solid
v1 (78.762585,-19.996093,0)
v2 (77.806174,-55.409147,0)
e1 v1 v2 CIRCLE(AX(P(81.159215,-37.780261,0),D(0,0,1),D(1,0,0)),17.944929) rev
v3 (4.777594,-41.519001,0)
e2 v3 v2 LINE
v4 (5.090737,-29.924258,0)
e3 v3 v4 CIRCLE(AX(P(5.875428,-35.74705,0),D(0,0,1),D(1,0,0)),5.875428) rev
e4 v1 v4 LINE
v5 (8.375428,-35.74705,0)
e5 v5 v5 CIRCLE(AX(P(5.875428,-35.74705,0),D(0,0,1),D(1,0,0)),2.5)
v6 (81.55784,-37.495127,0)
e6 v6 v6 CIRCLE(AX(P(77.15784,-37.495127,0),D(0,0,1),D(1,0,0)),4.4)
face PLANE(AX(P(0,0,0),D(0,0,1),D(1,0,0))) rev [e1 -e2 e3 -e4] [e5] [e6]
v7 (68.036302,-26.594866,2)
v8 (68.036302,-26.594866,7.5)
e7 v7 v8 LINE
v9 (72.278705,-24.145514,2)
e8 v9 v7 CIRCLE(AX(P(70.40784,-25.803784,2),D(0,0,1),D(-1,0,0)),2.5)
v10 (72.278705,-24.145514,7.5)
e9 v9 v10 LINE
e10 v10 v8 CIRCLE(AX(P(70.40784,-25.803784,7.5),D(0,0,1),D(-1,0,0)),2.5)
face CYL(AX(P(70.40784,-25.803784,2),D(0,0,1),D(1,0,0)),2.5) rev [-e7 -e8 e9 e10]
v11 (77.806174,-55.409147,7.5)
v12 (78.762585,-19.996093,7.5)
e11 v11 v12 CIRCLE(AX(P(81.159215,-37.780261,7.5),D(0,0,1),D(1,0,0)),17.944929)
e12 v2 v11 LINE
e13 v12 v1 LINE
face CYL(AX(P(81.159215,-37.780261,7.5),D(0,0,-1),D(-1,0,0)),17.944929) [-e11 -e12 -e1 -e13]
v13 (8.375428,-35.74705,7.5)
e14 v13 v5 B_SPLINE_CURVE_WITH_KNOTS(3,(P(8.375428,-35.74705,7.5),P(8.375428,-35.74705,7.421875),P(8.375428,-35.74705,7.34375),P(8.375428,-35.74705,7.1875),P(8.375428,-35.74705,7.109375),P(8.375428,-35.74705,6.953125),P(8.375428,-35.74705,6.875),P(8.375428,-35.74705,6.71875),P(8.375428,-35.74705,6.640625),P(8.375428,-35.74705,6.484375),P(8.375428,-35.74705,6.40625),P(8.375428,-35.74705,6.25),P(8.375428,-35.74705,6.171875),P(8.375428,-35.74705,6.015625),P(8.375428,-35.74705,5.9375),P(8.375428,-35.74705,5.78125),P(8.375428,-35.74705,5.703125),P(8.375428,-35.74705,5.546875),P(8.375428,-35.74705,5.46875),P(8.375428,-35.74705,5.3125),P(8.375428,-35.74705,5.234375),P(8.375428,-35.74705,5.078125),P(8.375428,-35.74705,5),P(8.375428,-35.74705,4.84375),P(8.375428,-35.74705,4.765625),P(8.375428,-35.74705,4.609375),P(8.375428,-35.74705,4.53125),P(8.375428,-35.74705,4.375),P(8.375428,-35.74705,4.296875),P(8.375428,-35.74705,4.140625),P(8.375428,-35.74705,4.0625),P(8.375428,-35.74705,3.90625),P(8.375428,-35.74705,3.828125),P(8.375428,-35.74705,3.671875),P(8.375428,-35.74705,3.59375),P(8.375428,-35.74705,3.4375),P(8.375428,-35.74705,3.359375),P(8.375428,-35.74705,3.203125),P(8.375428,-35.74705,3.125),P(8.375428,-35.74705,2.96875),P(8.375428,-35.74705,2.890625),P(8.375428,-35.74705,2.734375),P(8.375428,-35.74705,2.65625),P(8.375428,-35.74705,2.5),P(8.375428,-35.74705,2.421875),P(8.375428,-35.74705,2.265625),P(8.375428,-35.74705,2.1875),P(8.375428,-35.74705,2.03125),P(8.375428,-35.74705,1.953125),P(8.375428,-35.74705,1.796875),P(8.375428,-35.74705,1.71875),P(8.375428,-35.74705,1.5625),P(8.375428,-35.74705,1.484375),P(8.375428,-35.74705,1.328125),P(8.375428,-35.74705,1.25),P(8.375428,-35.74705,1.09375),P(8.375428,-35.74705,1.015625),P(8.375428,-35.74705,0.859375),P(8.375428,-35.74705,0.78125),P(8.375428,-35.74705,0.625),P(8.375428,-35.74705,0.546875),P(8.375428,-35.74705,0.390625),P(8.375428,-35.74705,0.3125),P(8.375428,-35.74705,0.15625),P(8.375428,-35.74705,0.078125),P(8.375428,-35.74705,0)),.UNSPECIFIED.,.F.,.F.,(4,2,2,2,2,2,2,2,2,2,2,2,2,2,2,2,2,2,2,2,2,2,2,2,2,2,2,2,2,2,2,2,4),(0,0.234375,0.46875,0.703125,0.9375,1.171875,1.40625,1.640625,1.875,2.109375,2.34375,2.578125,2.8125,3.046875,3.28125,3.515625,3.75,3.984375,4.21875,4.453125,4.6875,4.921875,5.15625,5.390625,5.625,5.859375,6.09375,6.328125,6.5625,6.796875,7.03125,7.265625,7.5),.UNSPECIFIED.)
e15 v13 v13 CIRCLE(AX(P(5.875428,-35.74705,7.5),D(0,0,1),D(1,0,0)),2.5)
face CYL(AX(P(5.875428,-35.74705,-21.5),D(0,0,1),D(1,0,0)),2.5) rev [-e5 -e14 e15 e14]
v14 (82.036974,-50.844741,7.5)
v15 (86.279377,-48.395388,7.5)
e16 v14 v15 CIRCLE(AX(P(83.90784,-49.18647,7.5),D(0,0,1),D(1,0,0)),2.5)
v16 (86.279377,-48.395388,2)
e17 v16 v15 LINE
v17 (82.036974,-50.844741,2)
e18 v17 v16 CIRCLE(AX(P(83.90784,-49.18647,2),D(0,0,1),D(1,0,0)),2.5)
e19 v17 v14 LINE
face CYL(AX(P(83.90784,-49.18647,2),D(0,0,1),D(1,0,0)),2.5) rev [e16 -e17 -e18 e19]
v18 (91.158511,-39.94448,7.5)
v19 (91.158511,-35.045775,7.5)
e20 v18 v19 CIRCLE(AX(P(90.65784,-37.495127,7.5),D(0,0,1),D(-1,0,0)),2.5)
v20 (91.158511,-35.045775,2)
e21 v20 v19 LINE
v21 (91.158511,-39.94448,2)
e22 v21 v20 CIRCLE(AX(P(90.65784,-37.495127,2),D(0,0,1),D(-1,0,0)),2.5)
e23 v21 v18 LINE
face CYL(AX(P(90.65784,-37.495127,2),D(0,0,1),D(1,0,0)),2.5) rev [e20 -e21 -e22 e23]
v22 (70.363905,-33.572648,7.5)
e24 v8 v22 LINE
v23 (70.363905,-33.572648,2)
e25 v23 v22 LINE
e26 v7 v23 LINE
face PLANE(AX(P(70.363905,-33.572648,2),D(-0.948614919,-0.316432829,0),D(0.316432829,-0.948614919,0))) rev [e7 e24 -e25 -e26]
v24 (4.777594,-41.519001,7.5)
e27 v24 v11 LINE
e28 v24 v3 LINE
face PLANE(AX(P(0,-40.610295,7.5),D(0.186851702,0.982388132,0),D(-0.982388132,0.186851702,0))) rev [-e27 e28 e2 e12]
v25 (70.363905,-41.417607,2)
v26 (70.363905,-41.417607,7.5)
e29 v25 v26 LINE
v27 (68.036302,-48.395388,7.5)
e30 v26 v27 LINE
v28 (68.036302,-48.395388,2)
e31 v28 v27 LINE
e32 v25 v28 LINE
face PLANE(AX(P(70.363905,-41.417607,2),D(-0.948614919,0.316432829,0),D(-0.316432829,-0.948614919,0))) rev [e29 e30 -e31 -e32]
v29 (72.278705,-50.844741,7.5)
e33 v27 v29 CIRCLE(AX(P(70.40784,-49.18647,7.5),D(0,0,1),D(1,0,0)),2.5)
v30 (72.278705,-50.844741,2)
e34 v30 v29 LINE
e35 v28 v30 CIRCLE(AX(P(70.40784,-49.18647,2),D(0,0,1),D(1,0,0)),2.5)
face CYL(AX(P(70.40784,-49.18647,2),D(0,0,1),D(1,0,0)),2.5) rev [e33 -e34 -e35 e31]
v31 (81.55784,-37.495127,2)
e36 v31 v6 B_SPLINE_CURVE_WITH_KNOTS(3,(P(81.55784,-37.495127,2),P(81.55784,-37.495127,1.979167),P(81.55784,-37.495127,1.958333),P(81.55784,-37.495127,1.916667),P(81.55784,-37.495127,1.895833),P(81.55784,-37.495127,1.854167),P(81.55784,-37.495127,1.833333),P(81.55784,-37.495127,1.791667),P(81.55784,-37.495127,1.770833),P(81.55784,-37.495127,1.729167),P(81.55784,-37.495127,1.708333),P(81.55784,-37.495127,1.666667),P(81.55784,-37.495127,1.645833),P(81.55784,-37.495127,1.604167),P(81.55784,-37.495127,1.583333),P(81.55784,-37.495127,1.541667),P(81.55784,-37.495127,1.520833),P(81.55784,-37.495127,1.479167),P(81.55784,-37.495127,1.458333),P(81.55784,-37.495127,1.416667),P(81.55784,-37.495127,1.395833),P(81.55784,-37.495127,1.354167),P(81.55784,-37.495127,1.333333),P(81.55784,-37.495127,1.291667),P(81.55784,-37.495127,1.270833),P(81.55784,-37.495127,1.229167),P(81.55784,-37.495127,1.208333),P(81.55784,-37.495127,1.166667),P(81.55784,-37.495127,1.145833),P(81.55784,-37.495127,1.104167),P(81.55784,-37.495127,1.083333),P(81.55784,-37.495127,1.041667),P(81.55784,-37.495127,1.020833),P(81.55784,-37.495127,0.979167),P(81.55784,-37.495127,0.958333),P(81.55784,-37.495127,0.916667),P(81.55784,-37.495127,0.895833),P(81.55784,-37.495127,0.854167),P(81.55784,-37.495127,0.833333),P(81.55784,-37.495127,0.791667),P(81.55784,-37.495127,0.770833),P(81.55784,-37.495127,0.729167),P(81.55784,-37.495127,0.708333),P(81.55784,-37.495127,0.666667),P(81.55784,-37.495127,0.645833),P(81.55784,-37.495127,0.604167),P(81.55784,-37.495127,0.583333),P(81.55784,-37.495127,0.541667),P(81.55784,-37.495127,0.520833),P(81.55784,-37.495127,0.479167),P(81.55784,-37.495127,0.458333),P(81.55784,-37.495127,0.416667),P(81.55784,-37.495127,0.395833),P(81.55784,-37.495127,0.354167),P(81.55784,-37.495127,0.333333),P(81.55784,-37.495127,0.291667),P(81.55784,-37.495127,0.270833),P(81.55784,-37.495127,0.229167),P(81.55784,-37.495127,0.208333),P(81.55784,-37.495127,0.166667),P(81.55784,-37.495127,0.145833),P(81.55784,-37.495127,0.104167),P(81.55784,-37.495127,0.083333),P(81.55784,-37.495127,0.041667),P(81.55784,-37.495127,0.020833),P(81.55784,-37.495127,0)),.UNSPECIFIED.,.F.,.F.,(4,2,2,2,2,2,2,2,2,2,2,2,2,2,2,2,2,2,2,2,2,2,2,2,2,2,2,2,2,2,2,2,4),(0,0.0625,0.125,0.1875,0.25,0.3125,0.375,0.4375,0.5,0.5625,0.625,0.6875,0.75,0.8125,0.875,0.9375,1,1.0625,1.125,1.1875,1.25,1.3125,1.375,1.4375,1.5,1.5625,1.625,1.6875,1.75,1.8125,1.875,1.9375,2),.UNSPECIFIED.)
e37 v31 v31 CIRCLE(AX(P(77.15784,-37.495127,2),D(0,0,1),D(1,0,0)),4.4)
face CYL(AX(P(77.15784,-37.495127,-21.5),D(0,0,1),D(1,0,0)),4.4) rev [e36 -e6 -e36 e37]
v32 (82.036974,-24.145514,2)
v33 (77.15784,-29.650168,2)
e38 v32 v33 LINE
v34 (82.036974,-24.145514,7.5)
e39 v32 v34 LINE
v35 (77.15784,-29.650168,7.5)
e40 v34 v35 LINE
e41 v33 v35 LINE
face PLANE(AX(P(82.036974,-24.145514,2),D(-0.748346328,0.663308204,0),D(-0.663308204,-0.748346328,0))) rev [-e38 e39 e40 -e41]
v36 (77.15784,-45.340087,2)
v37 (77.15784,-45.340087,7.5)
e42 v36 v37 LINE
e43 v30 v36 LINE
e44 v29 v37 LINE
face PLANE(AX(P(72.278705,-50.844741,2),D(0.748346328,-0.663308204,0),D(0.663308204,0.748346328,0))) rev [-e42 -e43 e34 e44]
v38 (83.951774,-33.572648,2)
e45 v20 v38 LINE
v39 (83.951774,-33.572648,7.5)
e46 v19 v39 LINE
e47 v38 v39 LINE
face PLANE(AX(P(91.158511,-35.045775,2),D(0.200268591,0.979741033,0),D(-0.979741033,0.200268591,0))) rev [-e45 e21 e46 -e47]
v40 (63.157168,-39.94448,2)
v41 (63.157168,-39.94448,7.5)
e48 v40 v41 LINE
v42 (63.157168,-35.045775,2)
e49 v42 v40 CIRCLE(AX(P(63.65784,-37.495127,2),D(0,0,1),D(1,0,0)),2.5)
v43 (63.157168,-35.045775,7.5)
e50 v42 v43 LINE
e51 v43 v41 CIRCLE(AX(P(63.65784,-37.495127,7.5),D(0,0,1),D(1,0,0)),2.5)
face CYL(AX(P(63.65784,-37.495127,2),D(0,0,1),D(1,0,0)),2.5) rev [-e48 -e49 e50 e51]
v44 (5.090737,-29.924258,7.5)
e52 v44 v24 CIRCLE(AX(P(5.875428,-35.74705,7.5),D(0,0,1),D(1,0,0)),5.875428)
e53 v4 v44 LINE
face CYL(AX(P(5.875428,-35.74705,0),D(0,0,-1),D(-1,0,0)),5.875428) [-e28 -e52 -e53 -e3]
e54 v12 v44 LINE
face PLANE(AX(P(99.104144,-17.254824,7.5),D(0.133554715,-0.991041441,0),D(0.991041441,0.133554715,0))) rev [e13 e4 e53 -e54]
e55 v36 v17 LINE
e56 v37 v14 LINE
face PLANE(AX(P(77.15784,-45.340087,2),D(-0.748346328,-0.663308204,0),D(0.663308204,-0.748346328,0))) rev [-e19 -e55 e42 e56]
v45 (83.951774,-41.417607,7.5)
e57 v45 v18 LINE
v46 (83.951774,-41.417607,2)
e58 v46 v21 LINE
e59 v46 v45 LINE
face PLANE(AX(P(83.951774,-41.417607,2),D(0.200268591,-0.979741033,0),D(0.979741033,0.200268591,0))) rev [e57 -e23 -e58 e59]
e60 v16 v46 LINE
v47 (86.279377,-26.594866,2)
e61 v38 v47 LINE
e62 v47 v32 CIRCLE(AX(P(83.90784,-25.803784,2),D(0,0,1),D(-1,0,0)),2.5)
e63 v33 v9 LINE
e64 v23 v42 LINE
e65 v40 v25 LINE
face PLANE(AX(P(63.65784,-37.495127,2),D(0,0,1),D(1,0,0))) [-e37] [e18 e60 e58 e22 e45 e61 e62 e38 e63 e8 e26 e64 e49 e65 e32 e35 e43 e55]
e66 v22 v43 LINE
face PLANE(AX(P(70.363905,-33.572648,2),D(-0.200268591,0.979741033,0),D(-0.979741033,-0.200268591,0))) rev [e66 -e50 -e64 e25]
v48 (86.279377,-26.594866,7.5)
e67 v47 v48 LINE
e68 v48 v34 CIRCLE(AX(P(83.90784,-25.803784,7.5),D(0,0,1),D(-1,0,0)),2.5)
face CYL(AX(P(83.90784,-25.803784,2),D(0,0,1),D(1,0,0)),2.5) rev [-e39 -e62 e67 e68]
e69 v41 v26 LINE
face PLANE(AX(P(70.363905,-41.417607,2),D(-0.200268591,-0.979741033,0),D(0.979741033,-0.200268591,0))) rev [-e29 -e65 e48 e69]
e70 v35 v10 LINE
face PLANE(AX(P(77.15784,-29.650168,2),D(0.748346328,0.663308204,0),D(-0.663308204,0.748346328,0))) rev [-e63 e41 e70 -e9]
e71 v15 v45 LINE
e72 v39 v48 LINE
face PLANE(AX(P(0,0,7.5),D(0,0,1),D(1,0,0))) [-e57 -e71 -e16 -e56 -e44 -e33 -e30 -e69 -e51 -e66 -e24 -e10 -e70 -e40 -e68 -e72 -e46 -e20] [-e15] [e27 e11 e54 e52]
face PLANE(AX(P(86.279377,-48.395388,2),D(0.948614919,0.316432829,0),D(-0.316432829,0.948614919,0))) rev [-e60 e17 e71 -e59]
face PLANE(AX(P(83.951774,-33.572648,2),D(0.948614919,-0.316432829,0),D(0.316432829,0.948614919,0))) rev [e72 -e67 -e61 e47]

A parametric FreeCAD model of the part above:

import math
import FreeCAD as App
import Part
import Sketcher
from FreeCAD import Vector
Q = App.Units.Quantity


def edges_at(feature, points):
    """Names of the edges that pass closest to the given points."""
    edges = feature.Shape.Edges
    near = lambda p: min(range(len(edges)), key=lambda i: edges[i].distToShape(Part.Vertex(*p))[0])
    return sorted({f"Edge{near(p) + 1}" for p in points})

doc = App.newDocument("Part")
body = doc.addObject("PartDesign::Body", "Body")

# Sketch on XY plane
sketch1 = body.newObject("Sketcher::SketchObject", "Sketch")
sketch1.AttachmentSupport = (doc.getObject("XY_Plane"), [""])
sketch1.MapMode = "FlatFace"
sketch1.addGeometry([
    Part.LineSegment(Vector(0, -31, 0), Vector(0, -41, 0)),
    Part.LineSegment(Vector(0, -41, 0), Vector(99, -59, 0)),
    Part.LineSegment(Vector(99, -59, 0), Vector(99, -17, 0)),
    Part.LineSegment(Vector(99, -17, 0), Vector(0, -31, 0)),
], False)
sketch1.addConstraint([
    Sketcher.Constraint("Coincident", 0, 2, 1, 1),
    Sketcher.Constraint("Coincident", 1, 2, 2, 1),
    Sketcher.Constraint("Coincident", 2, 2, 3, 1),
    Sketcher.Constraint("Coincident", 3, 2, 0, 1),
    Sketcher.Constraint("Vertical", 0),
    Sketcher.Constraint("Vertical", 2),
    Sketcher.Constraint("PointOnObject", 0, 2, -2),
    Sketcher.Constraint("DistanceY", 0, 2, 0, 1, Q("10 mm")),
    Sketcher.Constraint("Distance", 3, Q("100 mm")),
    Sketcher.Constraint("DistanceY", 2, 1, 2, 2, Q("42.205229 mm")),
    Sketcher.Constraint("DistanceY", 0, 2, 2, 2, Q("23.355471 mm")),
    Sketcher.Constraint("DistanceY", 0, 2, -1, 1, Q("40.610295 mm")),
])
pad1 = body.newObject("PartDesign::Pad", "Pad")
pad1.Profile = sketch1
pad1.Length = 7.5
doc.recompute()

fillet = body.newObject("PartDesign::Fillet", "Fillet")
fillet.Base = (pad1, edges_at(pad1, [(99.104, -17.255, 3.75), (99.104, -59.46, 3.75)]))
fillet.Radius = 17.944929
doc.recompute()

fillet2 = body.newObject("PartDesign::Fillet", "Fillet001")
fillet2.Base = (fillet, edges_at(fillet, [(0, -40.61, 3.75), (0, -30.61, 3.75)]))
fillet2.Radius = 5.875428

# Sketch on XY plane
sketch2 = body.newObject("Sketcher::SketchObject", "Sketch001")
sketch2.AttachmentSupport = (doc.getObject("XY_Plane"), [""])
sketch2.MapMode = "FlatFace"
sketch2.AttachmentOffset = App.Placement(Vector(0, 0, 7.5), App.Rotation())
sketch2.addGeometry([
    Part.LineSegment(Vector(68, -26.6, 0), Vector(70.4, -33.6, 0)),  # 0
    Part.LineSegment(Vector(70.4, -33.6, 0), Vector(63.2, -35, 0)),  # 1
    Part.ArcOfCircle(Part.Circle(Vector(63.7, -37.5, 0), Vector(0, 0, 1), 2.5), math.radians(102), math.radians(258)),  # 2
    Part.LineSegment(Vector(63.2, -39.9, 0), Vector(70.4, -41.4, 0)),  # 3
    Part.LineSegment(Vector(70.4, -41.4, 0), Vector(68, -48.4, 0)),  # 4
    Part.ArcOfCircle(Part.Circle(Vector(70.4, -49.2, 0), Vector(0, 0, 1), 2.5), math.radians(162), math.radians(318)),  # 5
    Part.LineSegment(Vector(72.3, -50.8, 0), Vector(77.2, -45.3, 0)),  # 6
    Part.LineSegment(Vector(77.2, -45.3, 0), Vector(82, -50.8, 0)),  # 7
    Part.ArcOfCircle(Part.Circle(Vector(83.9, -49.2, 0), Vector(0, 0, 1), 2.5), math.radians(-138), math.radians(18)),  # 8
    Part.LineSegment(Vector(86.3, -48.4, 0), Vector(84, -41.4, 0)),  # 9
    Part.LineSegment(Vector(84, -41.4, 0), Vector(91.2, -39.9, 0)),  # 10
    Part.ArcOfCircle(Part.Circle(Vector(90.7, -37.5, 0), Vector(0, 0, 1), 2.5), math.radians(-78), math.radians(78)),  # 11
    Part.LineSegment(Vector(91.2, -35, 0), Vector(84, -33.6, 0)),  # 12
    Part.LineSegment(Vector(84, -33.6, 0), Vector(86.3, -26.6, 0)),  # 13
    Part.ArcOfCircle(Part.Circle(Vector(83.9, -25.8, 0), Vector(0, 0, 1), 2.5), math.radians(-18), math.radians(138)),  # 14
    Part.LineSegment(Vector(82, -24.1, 0), Vector(77.2, -29.7, 0)),  # 15
    Part.LineSegment(Vector(77.2, -29.7, 0), Vector(72.3, -24.1, 0)),  # 16
    Part.ArcOfCircle(Part.Circle(Vector(70.4, -25.8, 0), Vector(0, 0, 1), 2.5), math.radians(42), math.radians(198)),  # 17
], False)
sketch2.addConstraint([
    Sketcher.Constraint("Coincident", 0, 2, 1, 1),
    Sketcher.Constraint("Tangent", 1, 2, 2, 1),
    Sketcher.Constraint("Tangent", 2, 2, 3, 1),
    Sketcher.Constraint("Coincident", 3, 2, 4, 1),
    Sketcher.Constraint("Tangent", 4, 2, 5, 1),
    Sketcher.Constraint("Tangent", 5, 2, 6, 1),
    Sketcher.Constraint("Coincident", 6, 2, 7, 1),
    Sketcher.Constraint("Tangent", 7, 2, 8, 1),
    Sketcher.Constraint("Tangent", 8, 2, 9, 1),
    Sketcher.Constraint("Coincident", 9, 2, 10, 1),
    Sketcher.Constraint("Tangent", 10, 2, 11, 1),
    Sketcher.Constraint("Tangent", 11, 2, 12, 1),
    Sketcher.Constraint("Coincident", 12, 2, 13, 1),
    Sketcher.Constraint("Tangent", 13, 2, 14, 1),
    Sketcher.Constraint("Tangent", 14, 2, 15, 1),
    Sketcher.Constraint("Coincident", 15, 2, 16, 1),
    Sketcher.Constraint("Tangent", 16, 2, 17, 1),
    Sketcher.Constraint("Tangent", 17, 2, 0, 1),
    Sketcher.Constraint("Equal", 2, 5),
    Sketcher.Constraint("Equal", 5, 8),
    Sketcher.Constraint("Equal", 8, 11),
    Sketcher.Constraint("Equal", 11, 14),
    Sketcher.Constraint("Equal", 14, 17),
    Sketcher.Constraint("Parallel", 0, 9),
    Sketcher.Constraint("Parallel", 1, 10),
    Sketcher.Constraint("Parallel", 3, 12),
    Sketcher.Constraint("Parallel", 4, 13),
    Sketcher.Constraint("Parallel", 6, 15),
    Sketcher.Constraint("Parallel", 7, 16),
    Sketcher.Constraint("Horizontal", 5, 3, 8, 3),
    Sketcher.Constraint("Horizontal", 2, 3, 11, 3),
    Sketcher.Constraint("Horizontal", 14, 3, 17, 3),
    Sketcher.Constraint("Horizontal", 5, 2, 7, 2),
    Sketcher.Constraint("Horizontal", 4, 2, 8, 2),
    Sketcher.Constraint("Horizontal", 3, 2, 9, 2),
    Sketcher.Constraint("Horizontal", 2, 2, 10, 2),
    Sketcher.Constraint("Horizontal", 0, 2, 12, 2),
    Sketcher.Constraint("Vertical", 8, 3, 14, 3),
    Sketcher.Constraint("Vertical", 0, 2, 3, 2),
    Sketcher.Constraint("Equal", 0, 1),
    Sketcher.Constraint("Equal", 4, 6),
    Sketcher.Constraint("Radius", 2, Q("2.5 mm")),
    Sketcher.Constraint("DistanceX", 2, 3, 11, 3, Q("27 mm")),
    Sketcher.Constraint("DistanceX", 5, 3, 8, 3, Q("13.5 mm")),
    Sketcher.Constraint("DistanceX", 3, 2, 5, 2, Q("1.9148 mm")),
    Sketcher.Constraint("DistanceY", 4, 2, 6, 2, Q("3.055301 mm")),
    Sketcher.Constraint("DistanceX", -1, 1, 2, 3, Q("63.65784 mm")),
    Sketcher.Constraint("DistanceY", 5, 3, -1, 1, Q("49.18647 mm")),
])
pocket1 = body.newObject("PartDesign::Pocket", "Pocket")
pocket1.Profile = sketch2
pocket1.Length = 5.5

# Sketch on XY plane
sketch3 = body.newObject("Sketcher::SketchObject", "Sketch002")
sketch3.AttachmentSupport = (doc.getObject("XY_Plane"), [""])
sketch3.MapMode = "FlatFace"
sketch3.AttachmentOffset = App.Placement(Vector(0, 0, 7.5), App.Rotation())
sketch3.addGeometry(Part.Circle(Vector(77.2, -37.5, 0), Vector(0, 0, 1), 4.4), False)
sketch3.addConstraint([
    Sketcher.Constraint("Diameter", 0, Q("8.8 mm")),
    Sketcher.Constraint("DistanceX", -1, 1, 0, 3, Q("77.15784 mm")),
    Sketcher.Constraint("DistanceY", 0, 3, -1, 1, Q("37.495127 mm")),
])
pocket2 = body.newObject("PartDesign::Pocket", "Pocket001")
pocket2.Profile = sketch3
pocket2.Length = 29

# Sketch on XY plane
sketch4 = body.newObject("Sketcher::SketchObject", "Sketch003")
sketch4.AttachmentSupport = (doc.getObject("XY_Plane"), [""])
sketch4.MapMode = "FlatFace"
sketch4.AttachmentOffset = App.Placement(Vector(0, 0, 7.5), App.Rotation())
sketch4.addGeometry(Part.Circle(Vector(5.9, -35.7, 0), Vector(0, 0, 1), 2.5), False)
sketch4.addConstraint([
    Sketcher.Constraint("Diameter", 0, Q("5 mm")),
    Sketcher.Constraint("DistanceX", -1, 1, 0, 3, Q("5.875428 mm")),
    Sketcher.Constraint("DistanceY", 0, 3, -1, 1, Q("35.74705 mm")),
])
pocket3 = body.newObject("PartDesign::Pocket", "Pocket002")
pocket3.Profile = sketch4
pocket3.Length = 29

doc.recompute()
